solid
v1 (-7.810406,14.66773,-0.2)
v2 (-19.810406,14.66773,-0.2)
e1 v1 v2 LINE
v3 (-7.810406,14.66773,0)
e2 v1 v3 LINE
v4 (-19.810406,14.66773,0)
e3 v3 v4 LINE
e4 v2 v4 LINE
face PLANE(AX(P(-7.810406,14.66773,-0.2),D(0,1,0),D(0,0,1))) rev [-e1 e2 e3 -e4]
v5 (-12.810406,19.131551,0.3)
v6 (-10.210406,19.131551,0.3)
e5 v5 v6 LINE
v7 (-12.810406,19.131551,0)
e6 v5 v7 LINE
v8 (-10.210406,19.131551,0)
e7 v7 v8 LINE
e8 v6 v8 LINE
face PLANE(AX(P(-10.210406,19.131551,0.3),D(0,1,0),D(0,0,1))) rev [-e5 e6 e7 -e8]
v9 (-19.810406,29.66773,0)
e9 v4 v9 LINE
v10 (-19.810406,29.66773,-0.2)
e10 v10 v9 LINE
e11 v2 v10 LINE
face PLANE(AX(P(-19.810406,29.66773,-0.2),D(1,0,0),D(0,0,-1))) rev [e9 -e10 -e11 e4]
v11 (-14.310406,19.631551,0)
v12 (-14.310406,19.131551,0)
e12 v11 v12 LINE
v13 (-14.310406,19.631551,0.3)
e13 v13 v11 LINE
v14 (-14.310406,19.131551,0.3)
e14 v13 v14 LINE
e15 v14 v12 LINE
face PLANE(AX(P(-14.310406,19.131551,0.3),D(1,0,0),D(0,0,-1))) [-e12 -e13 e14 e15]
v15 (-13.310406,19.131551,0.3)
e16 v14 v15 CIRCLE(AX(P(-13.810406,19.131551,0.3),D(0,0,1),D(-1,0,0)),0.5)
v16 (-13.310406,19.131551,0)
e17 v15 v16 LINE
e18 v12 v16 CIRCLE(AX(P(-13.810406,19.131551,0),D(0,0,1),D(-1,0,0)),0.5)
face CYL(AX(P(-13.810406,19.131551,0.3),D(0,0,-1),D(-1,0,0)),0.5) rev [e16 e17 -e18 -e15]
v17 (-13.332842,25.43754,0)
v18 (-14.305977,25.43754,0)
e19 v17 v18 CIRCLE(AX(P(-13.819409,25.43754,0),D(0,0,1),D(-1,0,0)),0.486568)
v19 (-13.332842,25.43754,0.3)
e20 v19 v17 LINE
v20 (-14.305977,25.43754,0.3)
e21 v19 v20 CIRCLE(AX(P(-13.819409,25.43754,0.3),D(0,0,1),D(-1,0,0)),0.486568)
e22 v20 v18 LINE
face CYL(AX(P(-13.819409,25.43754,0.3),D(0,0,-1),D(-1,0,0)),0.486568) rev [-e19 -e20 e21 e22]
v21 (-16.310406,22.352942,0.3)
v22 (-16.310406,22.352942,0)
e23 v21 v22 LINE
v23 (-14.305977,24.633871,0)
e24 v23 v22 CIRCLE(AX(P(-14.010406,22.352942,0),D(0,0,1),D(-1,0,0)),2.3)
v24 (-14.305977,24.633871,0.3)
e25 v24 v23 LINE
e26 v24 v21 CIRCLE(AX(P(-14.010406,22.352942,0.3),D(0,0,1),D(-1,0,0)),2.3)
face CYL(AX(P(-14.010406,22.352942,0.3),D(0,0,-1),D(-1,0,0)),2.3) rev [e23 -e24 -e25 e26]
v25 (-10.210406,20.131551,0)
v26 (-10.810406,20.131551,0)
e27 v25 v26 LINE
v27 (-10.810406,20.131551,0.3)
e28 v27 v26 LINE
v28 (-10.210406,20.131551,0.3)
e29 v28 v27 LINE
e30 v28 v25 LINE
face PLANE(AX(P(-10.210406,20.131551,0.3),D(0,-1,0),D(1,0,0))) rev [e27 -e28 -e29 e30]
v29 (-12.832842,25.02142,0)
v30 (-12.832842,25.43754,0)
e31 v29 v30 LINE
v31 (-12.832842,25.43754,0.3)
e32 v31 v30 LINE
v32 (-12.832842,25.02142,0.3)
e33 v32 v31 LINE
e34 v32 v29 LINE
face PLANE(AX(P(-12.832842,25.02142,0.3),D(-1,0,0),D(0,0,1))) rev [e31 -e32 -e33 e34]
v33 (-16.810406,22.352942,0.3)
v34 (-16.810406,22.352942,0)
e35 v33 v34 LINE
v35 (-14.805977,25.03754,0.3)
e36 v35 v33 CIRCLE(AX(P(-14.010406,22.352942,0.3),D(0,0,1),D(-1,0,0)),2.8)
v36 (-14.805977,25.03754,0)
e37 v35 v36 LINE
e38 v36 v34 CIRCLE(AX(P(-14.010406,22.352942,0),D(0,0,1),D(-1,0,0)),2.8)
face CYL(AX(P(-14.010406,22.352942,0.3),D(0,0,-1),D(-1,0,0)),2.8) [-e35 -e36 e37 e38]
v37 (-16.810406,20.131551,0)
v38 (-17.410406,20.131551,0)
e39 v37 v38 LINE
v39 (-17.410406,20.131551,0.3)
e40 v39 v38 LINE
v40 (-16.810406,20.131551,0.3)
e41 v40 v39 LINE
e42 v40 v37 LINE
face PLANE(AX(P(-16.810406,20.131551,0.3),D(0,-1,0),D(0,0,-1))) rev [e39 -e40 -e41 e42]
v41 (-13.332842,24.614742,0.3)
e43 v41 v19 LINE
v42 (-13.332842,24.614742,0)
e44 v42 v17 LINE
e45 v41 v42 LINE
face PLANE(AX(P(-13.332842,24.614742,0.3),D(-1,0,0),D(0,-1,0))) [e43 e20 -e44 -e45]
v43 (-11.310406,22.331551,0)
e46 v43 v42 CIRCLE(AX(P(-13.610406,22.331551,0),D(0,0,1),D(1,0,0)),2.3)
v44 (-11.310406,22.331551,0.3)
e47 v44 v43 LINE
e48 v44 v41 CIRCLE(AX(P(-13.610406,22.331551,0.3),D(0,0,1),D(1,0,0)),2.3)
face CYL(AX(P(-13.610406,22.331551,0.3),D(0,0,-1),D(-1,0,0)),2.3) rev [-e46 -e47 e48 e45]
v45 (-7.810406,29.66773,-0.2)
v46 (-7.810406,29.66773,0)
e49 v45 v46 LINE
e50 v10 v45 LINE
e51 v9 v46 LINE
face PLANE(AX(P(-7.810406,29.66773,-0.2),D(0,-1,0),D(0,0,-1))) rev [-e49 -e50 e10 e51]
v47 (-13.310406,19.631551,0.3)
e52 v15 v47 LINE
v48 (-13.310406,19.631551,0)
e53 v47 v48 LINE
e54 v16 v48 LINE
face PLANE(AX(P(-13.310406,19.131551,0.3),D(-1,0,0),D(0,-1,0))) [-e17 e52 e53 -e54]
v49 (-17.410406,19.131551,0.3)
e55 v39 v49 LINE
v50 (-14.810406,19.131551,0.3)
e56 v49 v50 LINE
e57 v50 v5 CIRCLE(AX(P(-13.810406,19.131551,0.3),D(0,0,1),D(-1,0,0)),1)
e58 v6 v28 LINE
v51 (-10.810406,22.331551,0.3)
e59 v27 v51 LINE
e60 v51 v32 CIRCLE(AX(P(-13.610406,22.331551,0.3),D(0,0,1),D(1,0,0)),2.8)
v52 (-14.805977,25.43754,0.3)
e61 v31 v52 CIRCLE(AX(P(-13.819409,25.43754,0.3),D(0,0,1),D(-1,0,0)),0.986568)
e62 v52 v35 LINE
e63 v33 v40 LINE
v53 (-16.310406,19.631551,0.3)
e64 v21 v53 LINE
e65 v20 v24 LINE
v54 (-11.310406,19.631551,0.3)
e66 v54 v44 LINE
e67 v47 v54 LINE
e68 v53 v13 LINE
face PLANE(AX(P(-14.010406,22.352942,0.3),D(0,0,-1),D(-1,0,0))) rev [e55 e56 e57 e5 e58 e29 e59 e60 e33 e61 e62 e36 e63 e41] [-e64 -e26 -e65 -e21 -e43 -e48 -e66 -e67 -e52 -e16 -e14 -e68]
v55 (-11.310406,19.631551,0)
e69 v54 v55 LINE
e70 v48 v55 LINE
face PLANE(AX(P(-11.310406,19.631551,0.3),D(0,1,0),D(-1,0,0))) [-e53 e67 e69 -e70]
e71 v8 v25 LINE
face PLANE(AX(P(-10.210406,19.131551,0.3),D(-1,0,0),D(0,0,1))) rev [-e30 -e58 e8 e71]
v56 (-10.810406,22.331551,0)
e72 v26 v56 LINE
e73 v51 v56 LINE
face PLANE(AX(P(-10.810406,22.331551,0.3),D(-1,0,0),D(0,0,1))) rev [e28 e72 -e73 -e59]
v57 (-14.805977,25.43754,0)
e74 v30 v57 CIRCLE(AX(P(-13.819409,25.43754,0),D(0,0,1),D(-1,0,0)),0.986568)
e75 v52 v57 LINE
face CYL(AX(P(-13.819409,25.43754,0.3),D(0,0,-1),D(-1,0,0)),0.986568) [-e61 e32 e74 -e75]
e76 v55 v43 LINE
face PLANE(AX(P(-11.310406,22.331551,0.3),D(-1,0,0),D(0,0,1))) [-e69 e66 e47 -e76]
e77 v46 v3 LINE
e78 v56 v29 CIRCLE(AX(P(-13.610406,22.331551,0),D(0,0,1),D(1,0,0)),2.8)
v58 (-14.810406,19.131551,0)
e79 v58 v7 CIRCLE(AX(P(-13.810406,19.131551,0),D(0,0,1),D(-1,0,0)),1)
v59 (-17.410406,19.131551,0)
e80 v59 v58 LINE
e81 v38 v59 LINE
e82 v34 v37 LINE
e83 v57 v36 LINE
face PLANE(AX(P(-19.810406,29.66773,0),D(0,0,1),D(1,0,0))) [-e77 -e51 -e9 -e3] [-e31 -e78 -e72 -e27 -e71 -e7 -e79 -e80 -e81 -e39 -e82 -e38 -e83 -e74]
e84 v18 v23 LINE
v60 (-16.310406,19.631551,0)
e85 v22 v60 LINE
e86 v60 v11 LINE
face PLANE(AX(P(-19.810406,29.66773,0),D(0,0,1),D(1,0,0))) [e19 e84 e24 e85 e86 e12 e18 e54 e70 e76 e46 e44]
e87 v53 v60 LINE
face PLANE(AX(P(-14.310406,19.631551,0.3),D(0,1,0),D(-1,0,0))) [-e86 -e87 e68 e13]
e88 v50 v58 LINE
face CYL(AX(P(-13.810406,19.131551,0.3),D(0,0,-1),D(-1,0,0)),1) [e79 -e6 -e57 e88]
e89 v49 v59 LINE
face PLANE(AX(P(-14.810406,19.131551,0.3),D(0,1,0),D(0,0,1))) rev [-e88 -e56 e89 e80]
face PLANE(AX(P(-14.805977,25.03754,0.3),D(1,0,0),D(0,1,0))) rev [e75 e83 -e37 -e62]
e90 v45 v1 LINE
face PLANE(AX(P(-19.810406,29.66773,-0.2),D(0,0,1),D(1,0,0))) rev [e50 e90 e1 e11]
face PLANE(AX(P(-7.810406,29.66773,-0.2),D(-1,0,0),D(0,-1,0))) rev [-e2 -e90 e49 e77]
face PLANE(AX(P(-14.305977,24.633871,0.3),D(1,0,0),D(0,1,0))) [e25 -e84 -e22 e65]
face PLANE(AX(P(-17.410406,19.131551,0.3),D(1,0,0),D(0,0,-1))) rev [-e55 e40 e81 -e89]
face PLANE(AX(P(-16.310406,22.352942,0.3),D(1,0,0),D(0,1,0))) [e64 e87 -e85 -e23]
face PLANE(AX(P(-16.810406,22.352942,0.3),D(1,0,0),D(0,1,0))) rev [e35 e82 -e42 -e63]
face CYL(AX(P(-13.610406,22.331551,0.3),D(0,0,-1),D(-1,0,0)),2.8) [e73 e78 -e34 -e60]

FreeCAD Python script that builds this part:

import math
import FreeCAD as App
import Part
import Sketcher
from FreeCAD import Vector


def add_polygon(sketch, points):
    """Adds a closed chain of lines whose ends are joined by coincident constraints."""
    first, n = sketch.GeometryCount, len(points)
    for a, b in zip(points, points[1:] + points[:1]):
        sketch.addGeometry(Part.LineSegment(App.Vector(*a, 0), App.Vector(*b, 0)), False)
    for i in range(n):
        sketch.addConstraint(Sketcher.Constraint("Coincident", first + i, 2, first + (i + 1) % n, 1))

doc = App.newDocument("Part")
body = doc.addObject("PartDesign::Body", "Body")

# Sketch on XY plane
sketch1 = body.newObject("Sketcher::SketchObject", "Sketch")
sketch1.AttachmentSupport = (doc.getObject("XY_Plane"), [""])
sketch1.MapMode = "FlatFace"
sketch1.addGeometry([
    Part.LineSegment(Vector(-12.832842, 25.02142, 0), Vector(-12.832842, 25.43754, 0)),  # 0
    Part.ArcOfCircle(Part.Circle(Vector(-13.819409, 25.43754, 0), Vector(0, 0, 1), 0.986568), math.radians(0), math.radians(180)),  # 1
    Part.LineSegment(Vector(-14.805977, 25.43754, 0), Vector(-14.805977, 25.03754, 0)),  # 2
    Part.ArcOfCircle(Part.Circle(Vector(-14.010406, 22.352942, 0), Vector(0, 0, 1), 2.8), math.radians(106.507004), math.radians(146.078211)),  # 3
    Part.ArcOfCircle(Part.Circle(Vector(-14.010406, 22.352942, 0), Vector(0, 0, 1), 2.8), math.radians(146.078211), math.radians(180)),  # 4
    Part.LineSegment(Vector(-16.810406, 22.352942, 0), Vector(-16.810406, 20.131551, 0)),  # 5
    Part.LineSegment(Vector(-16.810406, 20.131551, 0), Vector(-17.410406, 20.131551, 0)),  # 6
    Part.LineSegment(Vector(-17.410406, 20.131551, 0), Vector(-17.410406, 19.131551, 0)),  # 7
    Part.LineSegment(Vector(-17.410406, 19.131551, 0), Vector(-14.810406, 19.131551, 0)),  # 8
    Part.ArcOfCircle(Part.Circle(Vector(-13.810406, 19.131551, 0), Vector(0, 0, 1), 1), math.radians(180), math.radians(360)),  # 9
    Part.LineSegment(Vector(-12.810406, 19.131551, 0), Vector(-10.210406, 19.131551, 0)),  # 10
    Part.LineSegment(Vector(-10.210406, 19.131551, 0), Vector(-10.210406, 20.131551, 0)),  # 11
    Part.LineSegment(Vector(-10.210406, 20.131551, 0), Vector(-10.810406, 20.131551, 0)),  # 12
    Part.LineSegment(Vector(-10.810406, 20.131551, 0), Vector(-10.810406, 22.331551, 0)),  # 13
    Part.ArcOfCircle(Part.Circle(Vector(-13.610406, 22.331551, 0), Vector(0, 0, 1), 2.8), math.radians(0), math.radians(73.876932)),  # 14
    Part.ArcOfCircle(Part.Circle(Vector(-13.610406, 22.331551, 0), Vector(0, 0, 1), 2.3), math.radians(0), math.radians(83.06865)),  # 15
    Part.LineSegment(Vector(-11.310406, 22.331551, 0), Vector(-11.310406, 19.631551, 0)),  # 16
    Part.LineSegment(Vector(-11.310406, 19.631551, 0), Vector(-13.310406, 19.631551, 0)),  # 17
    Part.LineSegment(Vector(-13.310406, 19.631551, 0), Vector(-13.310406, 19.131551, 0)),  # 18
    Part.ArcOfCircle(Part.Circle(Vector(-13.810406, 19.131551, 0), Vector(0, 0, 1), 0.5), math.radians(180), math.radians(360)),  # 19
    Part.LineSegment(Vector(-14.310406, 19.131551, 0), Vector(-14.310406, 19.631551, 0)),  # 20
    Part.LineSegment(Vector(-14.310406, 19.631551, 0), Vector(-16.310406, 19.631551, 0)),  # 21
    Part.LineSegment(Vector(-16.310406, 19.631551, 0), Vector(-16.310406, 22.352942, 0)),  # 22
    Part.ArcOfCircle(Part.Circle(Vector(-14.010406, 22.352942, 0), Vector(0, 0, 1), 2.3), math.radians(146.078211), math.radians(180)),  # 23
    Part.ArcOfCircle(Part.Circle(Vector(-14.010406, 22.352942, 0), Vector(0, 0, 1), 2.3), math.radians(97.383452), math.radians(146.07821)),  # 24
    Part.LineSegment(Vector(-14.305977, 24.633871, 0), Vector(-14.305977, 25.43754, 0)),  # 25
    Part.ArcOfCircle(Part.Circle(Vector(-13.819409, 25.43754, 0), Vector(0, 0, 1), 0.486568), math.radians(0), math.radians(180)),  # 26
    Part.LineSegment(Vector(-13.332842, 25.43754, 0), Vector(-13.332842, 24.614742, 0)),  # 27
], False)
sketch1.addConstraint([
    Sketcher.Constraint("Tangent", 0, 2, 1, 1),
    Sketcher.Constraint("Tangent", 1, 2, 2, 1),
    Sketcher.Constraint("Coincident", 2, 2, 3, 1),
    Sketcher.Constraint("Tangent", 3, 2, 4, 1),
    Sketcher.Constraint("Tangent", 4, 2, 5, 1),
    Sketcher.Constraint("Coincident", 5, 2, 6, 1),
    Sketcher.Constraint("Coincident", 6, 2, 7, 1),
    Sketcher.Constraint("Coincident", 7, 2, 8, 1),
    Sketcher.Constraint("Coincident", 8, 2, 9, 1),
    Sketcher.Constraint("Coincident", 9, 2, 10, 1),
    Sketcher.Constraint("Coincident", 10, 2, 11, 1),
    Sketcher.Constraint("Coincident", 11, 2, 12, 1),
    Sketcher.Constraint("Coincident", 12, 2, 13, 1),
    Sketcher.Constraint("Tangent", 13, 2, 14, 1),
    Sketcher.Constraint("Coincident", 14, 2, 0, 1),
    Sketcher.Constraint("Tangent", 15, 1, 16, 1),
    Sketcher.Constraint("Coincident", 16, 2, 17, 1),
    Sketcher.Constraint("Coincident", 17, 2, 18, 1),
    Sketcher.Constraint("Tangent", 18, 2, 19, 2),
    Sketcher.Constraint("Tangent", 19, 1, 20, 1),
    Sketcher.Constraint("Coincident", 20, 2, 21, 1),
    Sketcher.Constraint("Coincident", 21, 2, 22, 1),
    Sketcher.Constraint("Tangent", 22, 2, 23, 2),
    Sketcher.Constraint("Tangent", 23, 1, 24, 2),
    Sketcher.Constraint("Coincident", 24, 1, 25, 1),
    Sketcher.Constraint("Tangent", 25, 2, 26, 2),
    Sketcher.Constraint("Tangent", 26, 1, 27, 1),
    Sketcher.Constraint("Coincident", 27, 2, 15, 2),
    Sketcher.Constraint("Vertical", 0),
    Sketcher.Constraint("Vertical", 2),
    Sketcher.Constraint("Vertical", 5),
    Sketcher.Constraint("Horizontal", 6),
    Sketcher.Constraint("Vertical", 7),
    Sketcher.Constraint("Horizontal", 8),
    Sketcher.Constraint("Horizontal", 10),
    Sketcher.Constraint("Vertical", 11),
    Sketcher.Constraint("Horizontal", 12),
    Sketcher.Constraint("Vertical", 13),
    Sketcher.Constraint("Vertical", 16),
    Sketcher.Constraint("Horizontal", 17),
    Sketcher.Constraint("Vertical", 18),
    Sketcher.Constraint("Vertical", 20),
    Sketcher.Constraint("Horizontal", 21),
    Sketcher.Constraint("Vertical", 22),
    Sketcher.Constraint("Vertical", 25),
    Sketcher.Constraint("Vertical", 27),
    Sketcher.Constraint("Coincident", 15, 3, 14, 3),
    Sketcher.Constraint("Coincident", 19, 3, 9, 3),
    Sketcher.Constraint("Coincident", 23, 3, 3, 3),
    Sketcher.Constraint("Coincident", 26, 3, 1, 3),
    Sketcher.Constraint("Equal", 3, 4),
    Sketcher.Constraint("Equal", 4, 14),
    Sketcher.Constraint("Equal", 15, 23),
    Sketcher.Constraint("Equal", 23, 24),
    Sketcher.Constraint("Horizontal", 19, 3, 7, 2),
    Sketcher.Constraint("Horizontal", 8, 2, 9, 2),
    Sketcher.Constraint("Horizontal", 6, 2, 11, 2),
    Sketcher.Constraint("Horizontal", 17, 2, 20, 2),
    Sketcher.Constraint("Equal", 8, 10),
    Sketcher.Constraint("Equal", 6, 12),
    Sketcher.Constraint("Radius", 9, 1.0),
    Sketcher.Constraint("Radius", 3, 2.8),
    Sketcher.Constraint("Radius", 15, 2.3),
    Sketcher.Constraint("Radius", 19, 0.5),
    Sketcher.Constraint("DistanceX", 17, 2, 17, 1, 2.0),
    Sketcher.Constraint("DistanceY", 7, 2, 7, 1, 1.0),
    Sketcher.Constraint("DistanceX", 6, 2, 6, 1, 0.6),
    Sketcher.Constraint("DistanceY", 2, 2, 2, 1, 0.4),
    Sketcher.Constraint("DistanceY", 13, 1, 13, 2, 2.2),
    Sketcher.Constraint("DistanceY", 16, 2, 16, 1, 2.7),
    Sketcher.Constraint("DistanceX", 2, 2, 24, 1, 0.5),
    Sketcher.Constraint("DistanceY", 27, 2, 27, 1, 0.822798),
    Sketcher.Constraint("Radius", 1, 0.986568),
    Sketcher.Constraint("DistanceY", 0, 1, 0, 2, 0.41612),
    Sketcher.Constraint("DistanceX", 3, 2, 23, 1, 0.4149),
    Sketcher.Constraint("DistanceX", 1, 3, -1, 1, 13.819409),
    Sketcher.Constraint("DistanceY", -1, 1, 1, 3, 25.43754),
    Sketcher.Constraint("DistanceY", -1, 1, 23, 1, 23.636482),
])
pad1 = body.newObject("PartDesign::Pad", "Pad")
pad1.Profile = sketch1
pad1.Length = 0.3

# Sketch on XY plane
sketch2 = body.newObject("Sketcher::SketchObject", "Sketch001")
sketch2.AttachmentSupport = (doc.getObject("XY_Plane"), [""])
sketch2.MapMode = "FlatFace"
add_polygon(sketch2, [(-7.810406, 29.66773), (-7.810406, 14.66773), (-19.810406, 14.66773), (-19.810406, 29.66773)])  # lines 0-3
sketch2.addConstraint([
    Sketcher.Constraint("Vertical", 0),
    Sketcher.Constraint("Horizontal", 1),
    Sketcher.Constraint("Vertical", 2),
    Sketcher.Constraint("Horizontal", 3),
    Sketcher.Constraint("DistanceX", 1, 2, 1, 1, 12.0),
    Sketcher.Constraint("DistanceY", 0, 2, 0, 1, 15.0),
    Sketcher.Constraint("DistanceY", -1, 1, 0, 2, 14.66773),
    Sketcher.Constraint("DistanceX", 0, 2, -1, 1, 7.810406),
])
pad2 = body.newObject("PartDesign::Pad", "Pad001")
pad2.Profile = sketch2
pad2.Length = 0.2
pad2.Reversed = True

doc.recompute()
